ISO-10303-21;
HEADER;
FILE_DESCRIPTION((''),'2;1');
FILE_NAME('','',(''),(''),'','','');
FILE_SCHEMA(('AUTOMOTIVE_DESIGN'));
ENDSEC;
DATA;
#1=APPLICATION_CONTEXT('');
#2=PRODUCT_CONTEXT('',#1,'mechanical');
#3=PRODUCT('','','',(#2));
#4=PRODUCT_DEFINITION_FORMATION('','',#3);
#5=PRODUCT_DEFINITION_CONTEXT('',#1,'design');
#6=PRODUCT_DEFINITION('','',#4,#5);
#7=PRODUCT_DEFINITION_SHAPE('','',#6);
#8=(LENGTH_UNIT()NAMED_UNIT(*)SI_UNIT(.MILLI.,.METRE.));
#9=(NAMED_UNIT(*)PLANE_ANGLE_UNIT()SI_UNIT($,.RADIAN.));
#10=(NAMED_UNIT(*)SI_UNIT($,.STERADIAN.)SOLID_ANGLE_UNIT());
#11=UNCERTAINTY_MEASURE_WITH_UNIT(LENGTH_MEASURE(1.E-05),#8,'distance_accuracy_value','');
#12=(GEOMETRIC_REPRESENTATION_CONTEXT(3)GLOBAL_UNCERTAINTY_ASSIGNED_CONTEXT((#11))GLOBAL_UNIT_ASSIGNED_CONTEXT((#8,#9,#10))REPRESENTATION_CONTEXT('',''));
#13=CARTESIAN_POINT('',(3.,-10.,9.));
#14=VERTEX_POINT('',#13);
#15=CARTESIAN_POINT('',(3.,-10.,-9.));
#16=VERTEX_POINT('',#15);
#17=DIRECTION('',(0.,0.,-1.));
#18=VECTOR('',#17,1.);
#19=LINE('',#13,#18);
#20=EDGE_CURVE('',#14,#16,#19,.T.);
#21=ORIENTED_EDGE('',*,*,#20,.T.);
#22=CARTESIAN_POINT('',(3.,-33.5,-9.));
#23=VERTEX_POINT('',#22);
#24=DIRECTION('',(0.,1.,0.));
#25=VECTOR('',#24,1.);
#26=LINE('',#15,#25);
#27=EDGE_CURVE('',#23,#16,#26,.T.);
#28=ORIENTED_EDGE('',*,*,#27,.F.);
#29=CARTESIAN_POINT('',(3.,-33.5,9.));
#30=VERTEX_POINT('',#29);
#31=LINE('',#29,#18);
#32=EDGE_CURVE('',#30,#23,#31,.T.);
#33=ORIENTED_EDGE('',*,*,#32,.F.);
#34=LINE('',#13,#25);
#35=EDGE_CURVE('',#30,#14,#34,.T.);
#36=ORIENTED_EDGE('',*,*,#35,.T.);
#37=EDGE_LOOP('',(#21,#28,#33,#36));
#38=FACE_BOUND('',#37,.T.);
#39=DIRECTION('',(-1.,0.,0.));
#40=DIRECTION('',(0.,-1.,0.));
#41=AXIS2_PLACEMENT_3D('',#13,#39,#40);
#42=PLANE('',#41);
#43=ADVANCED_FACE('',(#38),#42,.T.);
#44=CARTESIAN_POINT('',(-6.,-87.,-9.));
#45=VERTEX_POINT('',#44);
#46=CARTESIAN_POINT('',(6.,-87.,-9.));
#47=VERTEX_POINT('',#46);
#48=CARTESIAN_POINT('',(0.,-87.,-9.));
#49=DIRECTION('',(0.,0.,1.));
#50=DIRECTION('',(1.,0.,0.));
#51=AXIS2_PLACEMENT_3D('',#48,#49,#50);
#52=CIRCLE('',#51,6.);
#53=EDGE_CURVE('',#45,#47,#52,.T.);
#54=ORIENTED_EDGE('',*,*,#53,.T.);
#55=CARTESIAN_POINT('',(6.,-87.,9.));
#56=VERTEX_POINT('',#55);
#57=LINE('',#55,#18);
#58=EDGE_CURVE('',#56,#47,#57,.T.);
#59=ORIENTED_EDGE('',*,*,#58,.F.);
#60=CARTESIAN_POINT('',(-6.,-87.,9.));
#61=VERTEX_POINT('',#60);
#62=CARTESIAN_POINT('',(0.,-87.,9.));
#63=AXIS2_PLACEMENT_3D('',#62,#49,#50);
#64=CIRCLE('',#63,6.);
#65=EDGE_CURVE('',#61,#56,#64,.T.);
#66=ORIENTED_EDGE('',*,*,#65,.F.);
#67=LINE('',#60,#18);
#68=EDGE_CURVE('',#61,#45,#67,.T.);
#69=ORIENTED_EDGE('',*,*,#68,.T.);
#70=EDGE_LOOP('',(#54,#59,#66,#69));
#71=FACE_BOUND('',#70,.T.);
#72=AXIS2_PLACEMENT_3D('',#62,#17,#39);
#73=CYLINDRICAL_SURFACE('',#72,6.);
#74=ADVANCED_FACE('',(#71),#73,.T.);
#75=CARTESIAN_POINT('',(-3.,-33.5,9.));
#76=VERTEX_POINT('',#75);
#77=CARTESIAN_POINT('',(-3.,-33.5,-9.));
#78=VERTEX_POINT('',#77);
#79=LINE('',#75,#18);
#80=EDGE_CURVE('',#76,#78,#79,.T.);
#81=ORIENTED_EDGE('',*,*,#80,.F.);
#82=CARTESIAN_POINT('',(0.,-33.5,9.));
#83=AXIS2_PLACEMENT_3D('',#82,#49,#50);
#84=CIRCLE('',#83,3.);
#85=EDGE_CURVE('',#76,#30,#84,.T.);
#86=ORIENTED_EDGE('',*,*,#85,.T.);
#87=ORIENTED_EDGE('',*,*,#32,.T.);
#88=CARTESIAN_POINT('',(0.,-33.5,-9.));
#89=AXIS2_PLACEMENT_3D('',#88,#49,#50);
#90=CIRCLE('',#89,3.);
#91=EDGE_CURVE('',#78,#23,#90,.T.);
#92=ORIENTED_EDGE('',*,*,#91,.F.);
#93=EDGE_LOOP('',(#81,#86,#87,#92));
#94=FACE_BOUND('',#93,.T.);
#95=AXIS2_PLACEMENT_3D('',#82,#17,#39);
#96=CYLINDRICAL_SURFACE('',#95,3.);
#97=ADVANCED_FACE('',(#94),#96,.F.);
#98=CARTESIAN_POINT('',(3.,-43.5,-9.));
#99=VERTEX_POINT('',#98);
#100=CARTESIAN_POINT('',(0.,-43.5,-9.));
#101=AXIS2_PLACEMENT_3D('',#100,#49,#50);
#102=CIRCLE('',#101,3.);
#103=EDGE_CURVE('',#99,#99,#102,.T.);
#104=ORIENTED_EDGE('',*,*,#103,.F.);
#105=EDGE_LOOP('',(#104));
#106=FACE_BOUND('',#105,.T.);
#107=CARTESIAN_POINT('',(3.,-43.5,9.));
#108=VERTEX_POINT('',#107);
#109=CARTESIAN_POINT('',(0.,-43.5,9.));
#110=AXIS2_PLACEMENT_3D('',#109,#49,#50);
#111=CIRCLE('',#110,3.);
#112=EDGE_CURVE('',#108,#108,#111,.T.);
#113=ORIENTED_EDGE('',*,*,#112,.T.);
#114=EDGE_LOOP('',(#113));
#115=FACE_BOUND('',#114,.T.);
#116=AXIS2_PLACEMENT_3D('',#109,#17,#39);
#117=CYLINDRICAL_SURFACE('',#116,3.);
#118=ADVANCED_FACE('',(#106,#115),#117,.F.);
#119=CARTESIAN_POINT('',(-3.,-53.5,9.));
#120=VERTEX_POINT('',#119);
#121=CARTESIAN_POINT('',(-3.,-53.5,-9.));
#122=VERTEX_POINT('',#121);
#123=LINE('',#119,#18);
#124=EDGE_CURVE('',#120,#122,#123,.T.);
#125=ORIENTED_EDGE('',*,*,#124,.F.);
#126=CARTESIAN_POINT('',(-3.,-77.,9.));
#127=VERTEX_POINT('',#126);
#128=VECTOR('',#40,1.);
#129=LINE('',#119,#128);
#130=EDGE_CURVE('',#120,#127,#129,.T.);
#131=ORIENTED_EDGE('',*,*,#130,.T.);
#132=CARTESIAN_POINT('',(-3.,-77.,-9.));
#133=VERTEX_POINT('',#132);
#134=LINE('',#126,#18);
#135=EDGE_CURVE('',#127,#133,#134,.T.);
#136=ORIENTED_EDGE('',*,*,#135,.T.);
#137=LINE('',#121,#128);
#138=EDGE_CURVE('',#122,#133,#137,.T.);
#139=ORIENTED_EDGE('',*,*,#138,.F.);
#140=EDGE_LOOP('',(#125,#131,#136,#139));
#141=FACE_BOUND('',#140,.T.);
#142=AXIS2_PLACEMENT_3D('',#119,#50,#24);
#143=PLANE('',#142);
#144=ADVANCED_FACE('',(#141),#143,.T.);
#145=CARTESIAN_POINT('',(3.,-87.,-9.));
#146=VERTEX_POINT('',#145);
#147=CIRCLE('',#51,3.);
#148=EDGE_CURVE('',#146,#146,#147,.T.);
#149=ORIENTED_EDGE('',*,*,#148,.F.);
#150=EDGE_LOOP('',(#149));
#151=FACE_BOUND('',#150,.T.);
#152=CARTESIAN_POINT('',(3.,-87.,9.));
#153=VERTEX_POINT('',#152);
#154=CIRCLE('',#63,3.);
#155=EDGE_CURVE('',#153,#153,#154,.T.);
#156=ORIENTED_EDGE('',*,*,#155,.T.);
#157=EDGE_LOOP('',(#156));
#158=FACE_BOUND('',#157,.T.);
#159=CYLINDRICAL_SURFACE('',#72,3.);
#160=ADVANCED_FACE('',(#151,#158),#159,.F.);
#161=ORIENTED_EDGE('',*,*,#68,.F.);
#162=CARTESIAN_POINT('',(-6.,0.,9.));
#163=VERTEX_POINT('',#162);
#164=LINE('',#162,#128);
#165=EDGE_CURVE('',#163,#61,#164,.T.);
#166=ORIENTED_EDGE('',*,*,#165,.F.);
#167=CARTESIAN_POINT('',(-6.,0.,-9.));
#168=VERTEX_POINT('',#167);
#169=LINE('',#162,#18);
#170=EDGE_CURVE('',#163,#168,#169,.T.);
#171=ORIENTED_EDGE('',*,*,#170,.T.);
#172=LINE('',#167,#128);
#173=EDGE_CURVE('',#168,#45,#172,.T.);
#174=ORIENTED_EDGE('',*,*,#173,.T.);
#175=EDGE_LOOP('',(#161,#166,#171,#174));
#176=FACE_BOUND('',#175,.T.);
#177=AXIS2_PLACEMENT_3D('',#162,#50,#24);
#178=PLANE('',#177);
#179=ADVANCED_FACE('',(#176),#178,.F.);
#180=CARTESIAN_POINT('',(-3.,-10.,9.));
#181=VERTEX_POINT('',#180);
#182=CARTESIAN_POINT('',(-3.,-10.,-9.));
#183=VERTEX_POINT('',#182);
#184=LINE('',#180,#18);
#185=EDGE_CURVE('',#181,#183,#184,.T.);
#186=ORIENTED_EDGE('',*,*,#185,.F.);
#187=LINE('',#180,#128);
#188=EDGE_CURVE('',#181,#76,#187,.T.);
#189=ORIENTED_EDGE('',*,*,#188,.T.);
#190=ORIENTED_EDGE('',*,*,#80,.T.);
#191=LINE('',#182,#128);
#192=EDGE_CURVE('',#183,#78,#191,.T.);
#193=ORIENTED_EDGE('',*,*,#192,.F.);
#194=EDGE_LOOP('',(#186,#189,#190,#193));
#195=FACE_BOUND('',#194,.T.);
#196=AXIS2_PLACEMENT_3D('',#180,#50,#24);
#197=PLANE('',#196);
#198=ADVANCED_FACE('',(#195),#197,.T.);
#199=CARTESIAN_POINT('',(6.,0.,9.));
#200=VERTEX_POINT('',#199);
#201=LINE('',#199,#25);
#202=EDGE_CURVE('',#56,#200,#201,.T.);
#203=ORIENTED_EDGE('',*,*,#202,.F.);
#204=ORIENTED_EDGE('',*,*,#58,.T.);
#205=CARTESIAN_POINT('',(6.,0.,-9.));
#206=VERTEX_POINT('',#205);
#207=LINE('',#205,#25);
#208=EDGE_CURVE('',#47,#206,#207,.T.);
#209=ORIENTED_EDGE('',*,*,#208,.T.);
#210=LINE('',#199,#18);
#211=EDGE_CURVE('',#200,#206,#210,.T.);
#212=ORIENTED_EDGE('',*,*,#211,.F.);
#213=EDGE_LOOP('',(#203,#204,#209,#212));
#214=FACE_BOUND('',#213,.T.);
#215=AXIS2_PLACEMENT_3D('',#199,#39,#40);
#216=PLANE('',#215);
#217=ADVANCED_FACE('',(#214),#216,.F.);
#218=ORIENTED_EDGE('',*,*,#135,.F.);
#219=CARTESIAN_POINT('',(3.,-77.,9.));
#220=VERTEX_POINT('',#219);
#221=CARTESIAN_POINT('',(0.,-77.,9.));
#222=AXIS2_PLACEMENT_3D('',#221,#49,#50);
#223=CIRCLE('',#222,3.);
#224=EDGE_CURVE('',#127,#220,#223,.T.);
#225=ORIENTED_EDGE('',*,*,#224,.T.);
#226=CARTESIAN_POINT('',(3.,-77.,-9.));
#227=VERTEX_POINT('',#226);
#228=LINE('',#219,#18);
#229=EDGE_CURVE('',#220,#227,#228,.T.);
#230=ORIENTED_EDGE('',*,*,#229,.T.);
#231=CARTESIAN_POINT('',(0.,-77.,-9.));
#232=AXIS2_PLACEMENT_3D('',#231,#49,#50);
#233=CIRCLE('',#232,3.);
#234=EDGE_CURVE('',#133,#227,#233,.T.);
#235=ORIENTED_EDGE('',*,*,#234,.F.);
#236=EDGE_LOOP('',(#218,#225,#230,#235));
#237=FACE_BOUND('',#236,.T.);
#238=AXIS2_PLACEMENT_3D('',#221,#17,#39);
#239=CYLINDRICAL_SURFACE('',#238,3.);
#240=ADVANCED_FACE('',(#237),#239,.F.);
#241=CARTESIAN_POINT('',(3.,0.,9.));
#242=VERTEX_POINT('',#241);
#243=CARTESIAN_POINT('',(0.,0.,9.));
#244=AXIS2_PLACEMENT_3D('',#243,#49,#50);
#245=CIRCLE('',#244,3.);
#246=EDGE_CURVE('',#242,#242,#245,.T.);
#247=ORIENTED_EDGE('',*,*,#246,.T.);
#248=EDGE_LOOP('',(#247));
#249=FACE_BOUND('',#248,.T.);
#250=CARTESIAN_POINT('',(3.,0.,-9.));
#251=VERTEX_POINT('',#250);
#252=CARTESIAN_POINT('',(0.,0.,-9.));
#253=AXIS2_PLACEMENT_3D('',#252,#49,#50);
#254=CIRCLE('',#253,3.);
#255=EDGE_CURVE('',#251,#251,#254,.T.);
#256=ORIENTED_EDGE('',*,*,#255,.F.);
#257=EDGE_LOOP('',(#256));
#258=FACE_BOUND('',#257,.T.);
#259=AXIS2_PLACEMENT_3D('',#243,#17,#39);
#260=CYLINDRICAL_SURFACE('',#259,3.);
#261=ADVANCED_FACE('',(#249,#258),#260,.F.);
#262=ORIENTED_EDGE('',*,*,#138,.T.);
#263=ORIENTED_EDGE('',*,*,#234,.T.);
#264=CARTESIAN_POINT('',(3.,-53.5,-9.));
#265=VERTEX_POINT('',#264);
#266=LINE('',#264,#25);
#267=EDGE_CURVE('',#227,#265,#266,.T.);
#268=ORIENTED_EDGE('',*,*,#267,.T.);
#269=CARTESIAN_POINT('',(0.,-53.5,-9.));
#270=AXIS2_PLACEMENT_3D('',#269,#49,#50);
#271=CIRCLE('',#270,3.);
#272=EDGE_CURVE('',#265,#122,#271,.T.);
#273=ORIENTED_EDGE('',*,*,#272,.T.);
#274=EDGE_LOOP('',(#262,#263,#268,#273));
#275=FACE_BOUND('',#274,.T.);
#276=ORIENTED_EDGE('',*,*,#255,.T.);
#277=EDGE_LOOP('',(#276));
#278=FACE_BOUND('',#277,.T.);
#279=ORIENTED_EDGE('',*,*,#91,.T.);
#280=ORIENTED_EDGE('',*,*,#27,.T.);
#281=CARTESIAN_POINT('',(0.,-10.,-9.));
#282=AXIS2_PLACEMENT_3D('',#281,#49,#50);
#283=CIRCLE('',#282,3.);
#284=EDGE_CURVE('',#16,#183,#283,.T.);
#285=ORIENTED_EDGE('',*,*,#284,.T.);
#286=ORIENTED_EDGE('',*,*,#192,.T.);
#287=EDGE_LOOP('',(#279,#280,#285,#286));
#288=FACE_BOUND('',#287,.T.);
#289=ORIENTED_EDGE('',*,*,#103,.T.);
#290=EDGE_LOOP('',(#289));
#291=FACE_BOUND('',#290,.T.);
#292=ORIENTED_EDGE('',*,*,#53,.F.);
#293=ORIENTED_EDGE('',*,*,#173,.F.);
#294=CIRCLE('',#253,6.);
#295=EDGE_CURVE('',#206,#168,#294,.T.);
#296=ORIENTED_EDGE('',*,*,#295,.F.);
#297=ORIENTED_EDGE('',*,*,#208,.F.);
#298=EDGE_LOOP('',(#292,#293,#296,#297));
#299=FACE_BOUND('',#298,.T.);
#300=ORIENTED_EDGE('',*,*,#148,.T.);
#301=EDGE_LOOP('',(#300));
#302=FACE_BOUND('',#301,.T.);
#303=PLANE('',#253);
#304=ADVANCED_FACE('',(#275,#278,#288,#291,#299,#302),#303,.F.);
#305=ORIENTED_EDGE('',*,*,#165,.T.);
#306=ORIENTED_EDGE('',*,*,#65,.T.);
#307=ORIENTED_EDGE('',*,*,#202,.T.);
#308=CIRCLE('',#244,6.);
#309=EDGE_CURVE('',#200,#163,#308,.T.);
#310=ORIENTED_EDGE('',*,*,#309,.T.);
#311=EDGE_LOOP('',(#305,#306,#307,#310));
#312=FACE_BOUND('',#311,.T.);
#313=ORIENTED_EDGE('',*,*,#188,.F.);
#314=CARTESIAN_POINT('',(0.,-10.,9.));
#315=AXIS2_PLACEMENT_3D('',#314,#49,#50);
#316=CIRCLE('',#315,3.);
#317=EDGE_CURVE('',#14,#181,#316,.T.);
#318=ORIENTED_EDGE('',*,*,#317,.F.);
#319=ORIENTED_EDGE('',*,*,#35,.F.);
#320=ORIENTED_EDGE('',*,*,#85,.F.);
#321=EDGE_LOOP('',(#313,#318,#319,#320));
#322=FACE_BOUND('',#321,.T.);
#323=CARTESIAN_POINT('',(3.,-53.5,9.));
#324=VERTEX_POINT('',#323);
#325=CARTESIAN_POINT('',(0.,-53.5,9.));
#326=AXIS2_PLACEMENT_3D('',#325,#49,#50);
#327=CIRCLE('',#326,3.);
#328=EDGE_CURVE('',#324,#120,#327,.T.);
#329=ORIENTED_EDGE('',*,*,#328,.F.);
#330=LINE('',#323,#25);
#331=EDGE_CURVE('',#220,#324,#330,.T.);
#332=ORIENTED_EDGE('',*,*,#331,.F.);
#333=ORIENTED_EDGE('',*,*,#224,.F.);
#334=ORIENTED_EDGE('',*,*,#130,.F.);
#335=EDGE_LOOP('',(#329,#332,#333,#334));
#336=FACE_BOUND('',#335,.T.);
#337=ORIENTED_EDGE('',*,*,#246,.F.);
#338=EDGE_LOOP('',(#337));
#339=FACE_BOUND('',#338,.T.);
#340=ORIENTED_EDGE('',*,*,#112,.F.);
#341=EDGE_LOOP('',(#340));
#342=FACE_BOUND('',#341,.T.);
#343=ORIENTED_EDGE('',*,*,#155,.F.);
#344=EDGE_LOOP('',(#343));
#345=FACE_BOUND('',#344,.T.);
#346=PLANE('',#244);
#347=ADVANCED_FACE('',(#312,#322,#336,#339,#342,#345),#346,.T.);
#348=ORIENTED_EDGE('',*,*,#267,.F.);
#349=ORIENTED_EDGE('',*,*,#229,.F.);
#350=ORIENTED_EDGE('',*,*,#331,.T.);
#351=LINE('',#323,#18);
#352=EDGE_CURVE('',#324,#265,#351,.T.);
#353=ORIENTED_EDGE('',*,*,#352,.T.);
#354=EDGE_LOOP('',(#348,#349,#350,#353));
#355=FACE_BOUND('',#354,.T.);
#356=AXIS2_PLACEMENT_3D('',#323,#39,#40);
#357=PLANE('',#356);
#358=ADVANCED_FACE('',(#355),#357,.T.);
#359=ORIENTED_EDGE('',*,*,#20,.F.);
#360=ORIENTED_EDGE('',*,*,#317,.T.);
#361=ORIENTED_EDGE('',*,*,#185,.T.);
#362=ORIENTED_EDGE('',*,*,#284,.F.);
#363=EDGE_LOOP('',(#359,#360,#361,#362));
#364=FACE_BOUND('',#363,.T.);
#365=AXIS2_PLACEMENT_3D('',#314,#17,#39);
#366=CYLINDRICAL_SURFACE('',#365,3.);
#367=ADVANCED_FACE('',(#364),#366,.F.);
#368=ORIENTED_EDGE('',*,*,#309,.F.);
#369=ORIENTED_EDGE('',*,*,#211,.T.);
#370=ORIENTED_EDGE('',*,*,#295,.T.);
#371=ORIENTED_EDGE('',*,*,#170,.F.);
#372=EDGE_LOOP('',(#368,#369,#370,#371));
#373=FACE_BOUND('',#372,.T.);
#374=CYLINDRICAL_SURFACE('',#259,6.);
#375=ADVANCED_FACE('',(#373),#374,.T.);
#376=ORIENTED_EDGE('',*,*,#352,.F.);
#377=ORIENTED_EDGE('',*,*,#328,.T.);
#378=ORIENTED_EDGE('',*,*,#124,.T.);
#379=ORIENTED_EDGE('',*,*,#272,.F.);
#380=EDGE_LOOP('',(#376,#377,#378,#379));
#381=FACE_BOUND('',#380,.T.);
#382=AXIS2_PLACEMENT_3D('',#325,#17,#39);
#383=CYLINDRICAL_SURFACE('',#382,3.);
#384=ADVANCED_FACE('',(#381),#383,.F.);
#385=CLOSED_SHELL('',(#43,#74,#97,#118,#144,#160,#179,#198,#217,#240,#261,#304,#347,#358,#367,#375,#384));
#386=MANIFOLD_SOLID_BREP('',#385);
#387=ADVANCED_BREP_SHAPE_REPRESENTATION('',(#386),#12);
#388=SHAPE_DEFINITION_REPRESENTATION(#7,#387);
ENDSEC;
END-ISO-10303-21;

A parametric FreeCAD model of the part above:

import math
import FreeCAD as App
import Part
import Sketcher
from FreeCAD import Vector
Q = App.Units.Quantity

doc = App.newDocument("Part")
body = doc.addObject("PartDesign::Body", "Body")

sketch1 = doc.addObject("Sketcher::SketchObject", "Sketch")
body.addObject(sketch1)
sketch1.AttachmentSupport = (doc.XY_Plane, [""])
sketch1.MapMode = "FlatFace"
sketch1.addGeometry(Part.LineSegment(Vector(6, -87, 0), Vector(6, 0, 0)), False)
sketch1.addGeometry(Part.ArcOfCircle(Part.Circle(Vector(0, 0, 0), Vector(0, 0, 1), 6), math.radians(0), math.radians(180)), False)
sketch1.addGeometry(Part.LineSegment(Vector(-6, 0, 0), Vector(-6, -87, 0)), False)
sketch1.addGeometry(Part.ArcOfCircle(Part.Circle(Vector(0, -87, 0), Vector(0, 0, 1), 6), math.radians(180), math.radians(360)), False)
sketch1.addGeometry(Part.Circle(Vector(0, -87, 0), Vector(0, 0, 1), 3), False)
sketch1.addGeometry(Part.LineSegment(Vector(3, -53.5, 0), Vector(3, -77, 0)), False)
sketch1.addGeometry(Part.ArcOfCircle(Part.Circle(Vector(0, -77, 0), Vector(0, 0, 1), 3), math.radians(180), math.radians(360)), False)
sketch1.addGeometry(Part.LineSegment(Vector(-3, -77, 0), Vector(-3, -53.5, 0)), False)
sketch1.addGeometry(Part.ArcOfCircle(Part.Circle(Vector(0, -53.5, 0), Vector(0, 0, 1), 3), math.radians(0), math.radians(180)), False)
sketch1.addGeometry(Part.Circle(Vector(0, -43.5, 0), Vector(0, 0, 1), 3), False)
sketch1.addGeometry(Part.LineSegment(Vector(3, -10, 0), Vector(3, -33.5, 0)), False)
sketch1.addGeometry(Part.ArcOfCircle(Part.Circle(Vector(0, -33.5, 0), Vector(0, 0, 1), 3), math.radians(180), math.radians(360)), False)
sketch1.addGeometry(Part.LineSegment(Vector(-3, -33.5, 0), Vector(-3, -10, 0)), False)
sketch1.addGeometry(Part.ArcOfCircle(Part.Circle(Vector(0, -10, 0), Vector(0, 0, 1), 3), math.radians(0), math.radians(180)), False)
sketch1.addGeometry(Part.Circle(Vector(0, 0, 0), Vector(0, 0, 1), 3), False)
sketch1.addConstraint(Sketcher.Constraint("Tangent", 0, 2, 1, 1))
sketch1.addConstraint(Sketcher.Constraint("Tangent", 1, 2, 2, 1))
sketch1.addConstraint(Sketcher.Constraint("Tangent", 2, 2, 3, 1))
sketch1.addConstraint(Sketcher.Constraint("Tangent", 3, 2, 0, 1))
sketch1.addConstraint(Sketcher.Constraint("Tangent", 5, 2, 6, 2))
sketch1.addConstraint(Sketcher.Constraint("Tangent", 6, 1, 7, 1))
sketch1.addConstraint(Sketcher.Constraint("Tangent", 7, 2, 8, 2))
sketch1.addConstraint(Sketcher.Constraint("Tangent", 8, 1, 5, 1))
sketch1.addConstraint(Sketcher.Constraint("Tangent", 10, 2, 11, 2))
sketch1.addConstraint(Sketcher.Constraint("Tangent", 11, 1, 12, 1))
sketch1.addConstraint(Sketcher.Constraint("Tangent", 12, 2, 13, 2))
sketch1.addConstraint(Sketcher.Constraint("Tangent", 13, 1, 10, 1))
sketch1.addConstraint(Sketcher.Constraint("Vertical", 0))
sketch1.addConstraint(Sketcher.Constraint("Vertical", 2))
sketch1.addConstraint(Sketcher.Constraint("Vertical", 5))
sketch1.addConstraint(Sketcher.Constraint("Vertical", 7))
sketch1.addConstraint(Sketcher.Constraint("Vertical", 10))
sketch1.addConstraint(Sketcher.Constraint("Vertical", 12))
sketch1.addConstraint(Sketcher.Constraint("Coincident", 1, 3, -1, 1))
sketch1.addConstraint(Sketcher.Constraint("Coincident", 14, 3, -1, 1))
sketch1.addConstraint(Sketcher.Constraint("Coincident", 4, 3, 3, 3))
sketch1.addConstraint(Sketcher.Constraint("Equal", 4, 6))
sketch1.addConstraint(Sketcher.Constraint("Equal", 8, 9))
sketch1.addConstraint(Sketcher.Constraint("Equal", 9, 11))
sketch1.addConstraint(Sketcher.Constraint("Equal", 13, 14))
sketch1.addConstraint(Sketcher.Constraint("PointOnObject", 6, 3, -2))
sketch1.addConstraint(Sketcher.Constraint("PointOnObject", 9, 3, -2))
sketch1.addConstraint(Sketcher.Constraint("PointOnObject", 11, 3, -2))
sketch1.addConstraint(Sketcher.Constraint("Equal", 7, 10))
sketch1.addConstraint(Sketcher.Constraint("Diameter", 4, Q("6 mm")))
sketch1.addConstraint(Sketcher.Constraint("Radius", 1, Q("6 mm")))
sketch1.addConstraint(Sketcher.Constraint("DistanceY", 0, 1, 0, 2, Q("87 mm")))
sketch1.addConstraint(Sketcher.Constraint("DistanceY", 5, 2, 5, 1, Q("23.5 mm")))
sketch1.addConstraint(Sketcher.Constraint("DistanceY", 6, 3, -1, 1, Q("77 mm")))
sketch1.addConstraint(Sketcher.Constraint("DistanceY", 13, 3, -1, 1, Q("10 mm")))
sketch1.addConstraint(Sketcher.Constraint("DistanceY", 8, 3, 9, 3, Q("10 mm")))
pad1 = doc.addObject("PartDesign::Pad", "Pad")
body.addObject(pad1)
pad1.Profile = sketch1
pad1.Length = 18
pad1.Midplane = True

doc.recompute()
